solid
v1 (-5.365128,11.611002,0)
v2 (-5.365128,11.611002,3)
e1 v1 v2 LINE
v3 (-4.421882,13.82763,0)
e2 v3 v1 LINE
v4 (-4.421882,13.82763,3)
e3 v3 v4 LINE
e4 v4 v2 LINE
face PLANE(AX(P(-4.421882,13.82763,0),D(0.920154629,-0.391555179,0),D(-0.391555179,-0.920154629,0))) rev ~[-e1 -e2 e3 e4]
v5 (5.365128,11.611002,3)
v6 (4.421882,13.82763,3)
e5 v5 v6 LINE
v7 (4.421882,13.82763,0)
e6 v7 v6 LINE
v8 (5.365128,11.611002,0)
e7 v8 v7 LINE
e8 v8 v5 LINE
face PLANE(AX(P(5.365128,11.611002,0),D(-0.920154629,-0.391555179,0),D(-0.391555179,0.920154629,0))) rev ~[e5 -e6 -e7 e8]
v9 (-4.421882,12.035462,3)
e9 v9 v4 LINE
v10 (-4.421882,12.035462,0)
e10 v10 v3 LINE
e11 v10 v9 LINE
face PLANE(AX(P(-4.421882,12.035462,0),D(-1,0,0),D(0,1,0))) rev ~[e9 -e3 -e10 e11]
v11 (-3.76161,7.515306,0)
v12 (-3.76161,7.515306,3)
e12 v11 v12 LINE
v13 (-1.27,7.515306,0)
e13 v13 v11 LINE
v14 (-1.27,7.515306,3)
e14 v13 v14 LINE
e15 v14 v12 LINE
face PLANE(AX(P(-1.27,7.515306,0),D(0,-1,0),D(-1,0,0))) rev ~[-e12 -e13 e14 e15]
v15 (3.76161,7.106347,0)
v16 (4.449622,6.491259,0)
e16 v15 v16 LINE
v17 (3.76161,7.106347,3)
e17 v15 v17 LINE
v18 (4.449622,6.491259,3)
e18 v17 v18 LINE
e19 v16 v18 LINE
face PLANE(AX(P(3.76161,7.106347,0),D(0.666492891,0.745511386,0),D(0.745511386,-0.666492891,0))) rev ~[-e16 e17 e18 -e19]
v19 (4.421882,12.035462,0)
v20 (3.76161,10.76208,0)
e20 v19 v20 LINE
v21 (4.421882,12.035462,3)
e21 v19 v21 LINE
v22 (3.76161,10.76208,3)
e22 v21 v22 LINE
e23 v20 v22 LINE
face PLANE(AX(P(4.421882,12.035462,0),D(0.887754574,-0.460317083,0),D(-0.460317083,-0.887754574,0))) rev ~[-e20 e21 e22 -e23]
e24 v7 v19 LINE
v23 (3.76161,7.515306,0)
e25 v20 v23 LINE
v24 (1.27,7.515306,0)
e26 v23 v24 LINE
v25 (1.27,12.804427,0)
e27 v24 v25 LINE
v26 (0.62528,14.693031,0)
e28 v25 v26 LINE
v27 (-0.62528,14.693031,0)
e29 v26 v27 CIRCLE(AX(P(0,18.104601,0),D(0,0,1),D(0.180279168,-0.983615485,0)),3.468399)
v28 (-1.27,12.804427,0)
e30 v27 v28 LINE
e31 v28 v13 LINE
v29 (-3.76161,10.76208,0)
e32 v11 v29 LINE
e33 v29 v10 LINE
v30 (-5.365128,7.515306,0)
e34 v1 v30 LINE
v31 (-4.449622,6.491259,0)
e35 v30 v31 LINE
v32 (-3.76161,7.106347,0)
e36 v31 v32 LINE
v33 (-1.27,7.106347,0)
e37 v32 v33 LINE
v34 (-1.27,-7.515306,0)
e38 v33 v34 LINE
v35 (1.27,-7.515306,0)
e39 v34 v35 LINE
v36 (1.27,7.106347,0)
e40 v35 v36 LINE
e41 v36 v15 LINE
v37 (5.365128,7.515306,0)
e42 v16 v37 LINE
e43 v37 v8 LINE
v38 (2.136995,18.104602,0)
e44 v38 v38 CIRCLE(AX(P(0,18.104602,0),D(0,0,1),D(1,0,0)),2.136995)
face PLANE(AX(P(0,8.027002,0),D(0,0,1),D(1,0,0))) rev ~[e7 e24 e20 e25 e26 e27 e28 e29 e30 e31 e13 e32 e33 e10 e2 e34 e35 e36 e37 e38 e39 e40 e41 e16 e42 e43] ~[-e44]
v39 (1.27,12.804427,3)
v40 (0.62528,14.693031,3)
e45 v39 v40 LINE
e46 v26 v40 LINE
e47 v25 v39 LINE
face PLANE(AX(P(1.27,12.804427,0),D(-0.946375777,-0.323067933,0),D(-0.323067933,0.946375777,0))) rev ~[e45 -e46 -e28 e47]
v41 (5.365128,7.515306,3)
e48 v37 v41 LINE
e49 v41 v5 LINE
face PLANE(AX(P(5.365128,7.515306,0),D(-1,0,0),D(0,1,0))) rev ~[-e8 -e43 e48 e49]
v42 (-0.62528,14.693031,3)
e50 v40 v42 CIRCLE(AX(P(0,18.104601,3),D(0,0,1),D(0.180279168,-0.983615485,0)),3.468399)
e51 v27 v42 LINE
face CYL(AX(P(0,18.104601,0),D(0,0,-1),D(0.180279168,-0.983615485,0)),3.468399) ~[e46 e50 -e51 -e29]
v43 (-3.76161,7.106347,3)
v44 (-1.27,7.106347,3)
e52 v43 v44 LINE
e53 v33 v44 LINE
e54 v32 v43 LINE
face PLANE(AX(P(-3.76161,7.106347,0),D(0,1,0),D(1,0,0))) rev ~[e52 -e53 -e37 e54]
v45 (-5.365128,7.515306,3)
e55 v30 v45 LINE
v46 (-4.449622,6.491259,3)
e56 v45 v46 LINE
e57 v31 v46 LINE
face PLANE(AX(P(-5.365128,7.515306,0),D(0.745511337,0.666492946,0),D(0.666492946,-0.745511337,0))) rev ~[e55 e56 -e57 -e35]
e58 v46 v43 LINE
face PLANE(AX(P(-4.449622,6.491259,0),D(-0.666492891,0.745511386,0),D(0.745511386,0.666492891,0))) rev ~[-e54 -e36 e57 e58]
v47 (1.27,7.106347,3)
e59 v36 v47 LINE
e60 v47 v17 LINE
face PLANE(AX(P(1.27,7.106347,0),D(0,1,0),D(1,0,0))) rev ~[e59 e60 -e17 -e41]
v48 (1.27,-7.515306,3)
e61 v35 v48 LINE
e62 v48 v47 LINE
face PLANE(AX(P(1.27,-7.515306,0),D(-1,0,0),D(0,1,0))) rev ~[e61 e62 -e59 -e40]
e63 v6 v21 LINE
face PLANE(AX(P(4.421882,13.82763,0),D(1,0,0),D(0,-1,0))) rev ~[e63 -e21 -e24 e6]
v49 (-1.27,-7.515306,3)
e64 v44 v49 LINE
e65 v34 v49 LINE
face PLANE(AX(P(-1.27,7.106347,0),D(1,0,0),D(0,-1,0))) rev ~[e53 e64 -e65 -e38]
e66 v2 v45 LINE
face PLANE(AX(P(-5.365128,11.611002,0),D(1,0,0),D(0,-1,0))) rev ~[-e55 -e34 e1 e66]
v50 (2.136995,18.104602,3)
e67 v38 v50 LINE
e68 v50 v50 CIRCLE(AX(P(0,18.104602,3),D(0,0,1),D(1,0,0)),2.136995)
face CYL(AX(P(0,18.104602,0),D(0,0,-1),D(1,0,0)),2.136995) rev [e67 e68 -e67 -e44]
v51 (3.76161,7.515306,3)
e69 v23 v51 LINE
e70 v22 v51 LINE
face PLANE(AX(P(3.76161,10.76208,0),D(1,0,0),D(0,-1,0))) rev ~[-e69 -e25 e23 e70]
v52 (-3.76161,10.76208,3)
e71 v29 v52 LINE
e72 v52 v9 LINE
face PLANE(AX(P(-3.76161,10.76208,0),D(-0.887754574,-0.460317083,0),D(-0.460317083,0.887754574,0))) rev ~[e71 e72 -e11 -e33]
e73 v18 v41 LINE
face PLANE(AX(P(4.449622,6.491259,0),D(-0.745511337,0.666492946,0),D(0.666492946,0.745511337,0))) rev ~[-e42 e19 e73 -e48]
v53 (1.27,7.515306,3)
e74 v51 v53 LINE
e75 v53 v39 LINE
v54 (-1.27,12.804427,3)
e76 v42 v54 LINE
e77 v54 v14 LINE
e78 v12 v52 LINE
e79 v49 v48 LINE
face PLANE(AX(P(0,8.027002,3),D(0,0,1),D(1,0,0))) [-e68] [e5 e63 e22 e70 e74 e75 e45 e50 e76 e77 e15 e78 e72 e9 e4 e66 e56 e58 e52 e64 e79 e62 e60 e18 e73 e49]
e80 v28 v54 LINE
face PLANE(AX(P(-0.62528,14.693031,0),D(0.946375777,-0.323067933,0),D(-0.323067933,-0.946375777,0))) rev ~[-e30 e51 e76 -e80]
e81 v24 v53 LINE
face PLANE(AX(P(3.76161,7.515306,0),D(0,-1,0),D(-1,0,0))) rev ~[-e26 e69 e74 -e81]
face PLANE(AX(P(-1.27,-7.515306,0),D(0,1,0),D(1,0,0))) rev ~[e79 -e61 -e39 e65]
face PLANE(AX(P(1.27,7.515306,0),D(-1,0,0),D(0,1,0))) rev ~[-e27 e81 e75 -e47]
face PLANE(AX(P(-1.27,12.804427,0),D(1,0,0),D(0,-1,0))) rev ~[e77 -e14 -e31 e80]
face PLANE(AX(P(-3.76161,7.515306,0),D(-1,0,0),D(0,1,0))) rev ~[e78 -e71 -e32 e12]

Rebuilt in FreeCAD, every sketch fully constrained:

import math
import FreeCAD as App
import Part
import Sketcher

V = App.Vector

doc = App.newDocument("Part")
body = doc.addObject("PartDesign::Body", "Body")

# Sketch on XY plane
sketch1 = body.newObject("Sketcher::SketchObject", "Sketch")
sketch1.AttachmentSupport = (doc.getObject("XY_Plane"), [""])
sketch1.MapMode = "FlatFace"
sketch1.addGeometry([
    Part.LineSegment(V(-1.3, 7.1, 0), V(-1.3, -7.5, 0)),  # 0
    Part.LineSegment(V(-1.3, -7.5, 0), V(1.3, -7.5, 0)),  # 1
    Part.LineSegment(V(1.3, -7.5, 0), V(1.3, 7.1, 0)),  # 2
    Part.LineSegment(V(1.3, 7.1, 0), V(3.8, 7.1, 0)),  # 3
    Part.LineSegment(V(3.8, 7.1, 0), V(4.4, 6.5, 0)),  # 4
    Part.LineSegment(V(4.4, 6.5, 0), V(5.4, 7.5, 0)),  # 5
    Part.LineSegment(V(5.4, 7.5, 0), V(5.4, 11.6, 0)),  # 6
    Part.LineSegment(V(5.4, 11.6, 0), V(4.4, 13.8, 0)),  # 7
    Part.LineSegment(V(4.4, 13.8, 0), V(4.4, 12, 0)),  # 8
    Part.LineSegment(V(4.4, 12, 0), V(3.8, 10.8, 0)),  # 9
    Part.LineSegment(V(3.8, 10.8, 0), V(3.8, 7.5, 0)),  # 10
    Part.LineSegment(V(3.8, 7.5, 0), V(1.3, 7.5, 0)),  # 11
    Part.LineSegment(V(1.3, 7.5, 0), V(1.3, 12.8, 0)),  # 12
    Part.LineSegment(V(1.3, 12.8, 0), V(0.6, 14.7, 0)),  # 13
    Part.ArcOfCircle(Part.Circle(V(0, 18.1, 0), V(0, 0, 1), 3.5), math.radians(-80), math.radians(260)),  # 14
    Part.LineSegment(V(-0.6, 14.7, 0), V(-1.3, 12.8, 0)),  # 15
    Part.LineSegment(V(-1.3, 12.8, 0), V(-1.3, 7.5, 0)),  # 16
    Part.LineSegment(V(-1.3, 7.5, 0), V(-3.8, 7.5, 0)),  # 17
    Part.LineSegment(V(-3.8, 7.5, 0), V(-3.8, 10.8, 0)),  # 18
    Part.LineSegment(V(-3.8, 10.8, 0), V(-4.4, 12, 0)),  # 19
    Part.LineSegment(V(-4.4, 12, 0), V(-4.4, 13.8, 0)),  # 20
    Part.LineSegment(V(-4.4, 13.8, 0), V(-5.4, 11.6, 0)),  # 21
    Part.LineSegment(V(-5.4, 11.6, 0), V(-5.4, 7.5, 0)),  # 22
    Part.LineSegment(V(-5.4, 7.5, 0), V(-4.4, 6.5, 0)),  # 23
    Part.LineSegment(V(-4.4, 6.5, 0), V(-3.8, 7.1, 0)),  # 24
    Part.LineSegment(V(-3.8, 7.1, 0), V(-1.3, 7.1, 0)),  # 25
    Part.Circle(V(0, 18.1, 0), V(0, 0, 1), 2.1),  # 26
], False)
sketch1.addConstraint([
    Sketcher.Constraint("Coincident", 0, 2, 1, 1),
    Sketcher.Constraint("Coincident", 1, 2, 2, 1),
    Sketcher.Constraint("Coincident", 2, 2, 3, 1),
    Sketcher.Constraint("Coincident", 3, 2, 4, 1),
    Sketcher.Constraint("Coincident", 4, 2, 5, 1),
    Sketcher.Constraint("Coincident", 5, 2, 6, 1),
    Sketcher.Constraint("Coincident", 6, 2, 7, 1),
    Sketcher.Constraint("Coincident", 7, 2, 8, 1),
    Sketcher.Constraint("Coincident", 8, 2, 9, 1),
    Sketcher.Constraint("Coincident", 9, 2, 10, 1),
    Sketcher.Constraint("Coincident", 10, 2, 11, 1),
    Sketcher.Constraint("Coincident", 11, 2, 12, 1),
    Sketcher.Constraint("Coincident", 12, 2, 13, 1),
    Sketcher.Constraint("Coincident", 13, 2, 14, 1),
    Sketcher.Constraint("Coincident", 14, 2, 15, 1),
    Sketcher.Constraint("Coincident", 15, 2, 16, 1),
    Sketcher.Constraint("Coincident", 16, 2, 17, 1),
    Sketcher.Constraint("Coincident", 17, 2, 18, 1),
    Sketcher.Constraint("Coincident", 18, 2, 19, 1),
    Sketcher.Constraint("Coincident", 19, 2, 20, 1),
    Sketcher.Constraint("Coincident", 20, 2, 21, 1),
    Sketcher.Constraint("Coincident", 21, 2, 22, 1),
    Sketcher.Constraint("Coincident", 22, 2, 23, 1),
    Sketcher.Constraint("Coincident", 23, 2, 24, 1),
    Sketcher.Constraint("Coincident", 24, 2, 25, 1),
    Sketcher.Constraint("Coincident", 25, 2, 0, 1),
    Sketcher.Constraint("Vertical", 0),
    Sketcher.Constraint("Horizontal", 1),
    Sketcher.Constraint("Vertical", 2),
    Sketcher.Constraint("Horizontal", 3),
    Sketcher.Constraint("Vertical", 6),
    Sketcher.Constraint("Vertical", 8),
    Sketcher.Constraint("Vertical", 10),
    Sketcher.Constraint("Horizontal", 11),
    Sketcher.Constraint("Vertical", 12),
    Sketcher.Constraint("Vertical", 16),
    Sketcher.Constraint("Horizontal", 17),
    Sketcher.Constraint("Vertical", 18),
    Sketcher.Constraint("Vertical", 20),
    Sketcher.Constraint("Vertical", 22),
    Sketcher.Constraint("Horizontal", 25),
    Sketcher.Constraint("Coincident", 26, 3, 14, 3),
    Sketcher.Constraint("Symmetric", 0, 2, 11, 2, -1, 1),
    Sketcher.Constraint("Symmetric", 1, 2, 16, 2, -1, 1),
    Sketcher.Constraint("Symmetric", 13, 2, 14, 2, -2),
    Sketcher.Constraint("Symmetric", 12, 2, 15, 2, -2),
    Sketcher.Constraint("Symmetric", 9, 2, 18, 2, -2),
    Sketcher.Constraint("Symmetric", 8, 2, 19, 2, -2),
    Sketcher.Constraint("Symmetric", 6, 2, 21, 2, -2),
    Sketcher.Constraint("Symmetric", 4, 2, 23, 2, -2),
    Sketcher.Constraint("Symmetric", 3, 2, 24, 2, -2),
    Sketcher.Constraint("Perpendicular", 4, 5),
    Sketcher.Constraint("Perpendicular", 23, 24),
    Sketcher.Constraint("Horizontal", 5, 2, 10, 2),
    Sketcher.Constraint("Horizontal", 7, 2, 20, 2),
    Sketcher.Constraint("Vertical", 3, 2, 9, 2),
    Sketcher.Constraint("DistanceX", 1, 1, 1, 2, 2.54),
    Sketcher.Constraint("Radius", 14, 3.468399),
    Sketcher.Constraint("Diameter", 26, 4.27399),
    Sketcher.Constraint("DistanceY", -1, 1, 6, 2, 11.611002),
    Sketcher.Constraint("DistanceX", 3, 1, 3, 2, 2.49161),
    Sketcher.Constraint("DistanceY", 12, 1, 12, 2, 5.289121),
    Sketcher.Constraint("DistanceY", -1, 1, 14, 3, 18.104601),
    Sketcher.Constraint("DistanceX", 13, 2, 7, 2, 3.796602),
    Sketcher.Constraint("DistanceY", 7, 2, 13, 2, 0.865401),
    Sketcher.Constraint("DistanceY", 0, 2, 0, 1, 14.621653),
    Sketcher.Constraint("DistanceY", 6, 1, 6, 2, 4.095696),
    Sketcher.Constraint("DistanceY", 8, 2, 8, 1, 1.792168),
    Sketcher.Constraint("DistanceY", 10, 2, 10, 1, 3.246774),
    Sketcher.Constraint("DistanceX", -1, 1, 4, 2, 4.449622),
    Sketcher.Constraint("DistanceY", -1, 1, 4, 2, 6.491259),
    Sketcher.Constraint("DistanceY", -1, 1, 7, 2, 13.82763),
])
pad1 = body.newObject("PartDesign::Pad", "Pad")
pad1.Profile = sketch1
pad1.Length = 3

doc.recompute()
